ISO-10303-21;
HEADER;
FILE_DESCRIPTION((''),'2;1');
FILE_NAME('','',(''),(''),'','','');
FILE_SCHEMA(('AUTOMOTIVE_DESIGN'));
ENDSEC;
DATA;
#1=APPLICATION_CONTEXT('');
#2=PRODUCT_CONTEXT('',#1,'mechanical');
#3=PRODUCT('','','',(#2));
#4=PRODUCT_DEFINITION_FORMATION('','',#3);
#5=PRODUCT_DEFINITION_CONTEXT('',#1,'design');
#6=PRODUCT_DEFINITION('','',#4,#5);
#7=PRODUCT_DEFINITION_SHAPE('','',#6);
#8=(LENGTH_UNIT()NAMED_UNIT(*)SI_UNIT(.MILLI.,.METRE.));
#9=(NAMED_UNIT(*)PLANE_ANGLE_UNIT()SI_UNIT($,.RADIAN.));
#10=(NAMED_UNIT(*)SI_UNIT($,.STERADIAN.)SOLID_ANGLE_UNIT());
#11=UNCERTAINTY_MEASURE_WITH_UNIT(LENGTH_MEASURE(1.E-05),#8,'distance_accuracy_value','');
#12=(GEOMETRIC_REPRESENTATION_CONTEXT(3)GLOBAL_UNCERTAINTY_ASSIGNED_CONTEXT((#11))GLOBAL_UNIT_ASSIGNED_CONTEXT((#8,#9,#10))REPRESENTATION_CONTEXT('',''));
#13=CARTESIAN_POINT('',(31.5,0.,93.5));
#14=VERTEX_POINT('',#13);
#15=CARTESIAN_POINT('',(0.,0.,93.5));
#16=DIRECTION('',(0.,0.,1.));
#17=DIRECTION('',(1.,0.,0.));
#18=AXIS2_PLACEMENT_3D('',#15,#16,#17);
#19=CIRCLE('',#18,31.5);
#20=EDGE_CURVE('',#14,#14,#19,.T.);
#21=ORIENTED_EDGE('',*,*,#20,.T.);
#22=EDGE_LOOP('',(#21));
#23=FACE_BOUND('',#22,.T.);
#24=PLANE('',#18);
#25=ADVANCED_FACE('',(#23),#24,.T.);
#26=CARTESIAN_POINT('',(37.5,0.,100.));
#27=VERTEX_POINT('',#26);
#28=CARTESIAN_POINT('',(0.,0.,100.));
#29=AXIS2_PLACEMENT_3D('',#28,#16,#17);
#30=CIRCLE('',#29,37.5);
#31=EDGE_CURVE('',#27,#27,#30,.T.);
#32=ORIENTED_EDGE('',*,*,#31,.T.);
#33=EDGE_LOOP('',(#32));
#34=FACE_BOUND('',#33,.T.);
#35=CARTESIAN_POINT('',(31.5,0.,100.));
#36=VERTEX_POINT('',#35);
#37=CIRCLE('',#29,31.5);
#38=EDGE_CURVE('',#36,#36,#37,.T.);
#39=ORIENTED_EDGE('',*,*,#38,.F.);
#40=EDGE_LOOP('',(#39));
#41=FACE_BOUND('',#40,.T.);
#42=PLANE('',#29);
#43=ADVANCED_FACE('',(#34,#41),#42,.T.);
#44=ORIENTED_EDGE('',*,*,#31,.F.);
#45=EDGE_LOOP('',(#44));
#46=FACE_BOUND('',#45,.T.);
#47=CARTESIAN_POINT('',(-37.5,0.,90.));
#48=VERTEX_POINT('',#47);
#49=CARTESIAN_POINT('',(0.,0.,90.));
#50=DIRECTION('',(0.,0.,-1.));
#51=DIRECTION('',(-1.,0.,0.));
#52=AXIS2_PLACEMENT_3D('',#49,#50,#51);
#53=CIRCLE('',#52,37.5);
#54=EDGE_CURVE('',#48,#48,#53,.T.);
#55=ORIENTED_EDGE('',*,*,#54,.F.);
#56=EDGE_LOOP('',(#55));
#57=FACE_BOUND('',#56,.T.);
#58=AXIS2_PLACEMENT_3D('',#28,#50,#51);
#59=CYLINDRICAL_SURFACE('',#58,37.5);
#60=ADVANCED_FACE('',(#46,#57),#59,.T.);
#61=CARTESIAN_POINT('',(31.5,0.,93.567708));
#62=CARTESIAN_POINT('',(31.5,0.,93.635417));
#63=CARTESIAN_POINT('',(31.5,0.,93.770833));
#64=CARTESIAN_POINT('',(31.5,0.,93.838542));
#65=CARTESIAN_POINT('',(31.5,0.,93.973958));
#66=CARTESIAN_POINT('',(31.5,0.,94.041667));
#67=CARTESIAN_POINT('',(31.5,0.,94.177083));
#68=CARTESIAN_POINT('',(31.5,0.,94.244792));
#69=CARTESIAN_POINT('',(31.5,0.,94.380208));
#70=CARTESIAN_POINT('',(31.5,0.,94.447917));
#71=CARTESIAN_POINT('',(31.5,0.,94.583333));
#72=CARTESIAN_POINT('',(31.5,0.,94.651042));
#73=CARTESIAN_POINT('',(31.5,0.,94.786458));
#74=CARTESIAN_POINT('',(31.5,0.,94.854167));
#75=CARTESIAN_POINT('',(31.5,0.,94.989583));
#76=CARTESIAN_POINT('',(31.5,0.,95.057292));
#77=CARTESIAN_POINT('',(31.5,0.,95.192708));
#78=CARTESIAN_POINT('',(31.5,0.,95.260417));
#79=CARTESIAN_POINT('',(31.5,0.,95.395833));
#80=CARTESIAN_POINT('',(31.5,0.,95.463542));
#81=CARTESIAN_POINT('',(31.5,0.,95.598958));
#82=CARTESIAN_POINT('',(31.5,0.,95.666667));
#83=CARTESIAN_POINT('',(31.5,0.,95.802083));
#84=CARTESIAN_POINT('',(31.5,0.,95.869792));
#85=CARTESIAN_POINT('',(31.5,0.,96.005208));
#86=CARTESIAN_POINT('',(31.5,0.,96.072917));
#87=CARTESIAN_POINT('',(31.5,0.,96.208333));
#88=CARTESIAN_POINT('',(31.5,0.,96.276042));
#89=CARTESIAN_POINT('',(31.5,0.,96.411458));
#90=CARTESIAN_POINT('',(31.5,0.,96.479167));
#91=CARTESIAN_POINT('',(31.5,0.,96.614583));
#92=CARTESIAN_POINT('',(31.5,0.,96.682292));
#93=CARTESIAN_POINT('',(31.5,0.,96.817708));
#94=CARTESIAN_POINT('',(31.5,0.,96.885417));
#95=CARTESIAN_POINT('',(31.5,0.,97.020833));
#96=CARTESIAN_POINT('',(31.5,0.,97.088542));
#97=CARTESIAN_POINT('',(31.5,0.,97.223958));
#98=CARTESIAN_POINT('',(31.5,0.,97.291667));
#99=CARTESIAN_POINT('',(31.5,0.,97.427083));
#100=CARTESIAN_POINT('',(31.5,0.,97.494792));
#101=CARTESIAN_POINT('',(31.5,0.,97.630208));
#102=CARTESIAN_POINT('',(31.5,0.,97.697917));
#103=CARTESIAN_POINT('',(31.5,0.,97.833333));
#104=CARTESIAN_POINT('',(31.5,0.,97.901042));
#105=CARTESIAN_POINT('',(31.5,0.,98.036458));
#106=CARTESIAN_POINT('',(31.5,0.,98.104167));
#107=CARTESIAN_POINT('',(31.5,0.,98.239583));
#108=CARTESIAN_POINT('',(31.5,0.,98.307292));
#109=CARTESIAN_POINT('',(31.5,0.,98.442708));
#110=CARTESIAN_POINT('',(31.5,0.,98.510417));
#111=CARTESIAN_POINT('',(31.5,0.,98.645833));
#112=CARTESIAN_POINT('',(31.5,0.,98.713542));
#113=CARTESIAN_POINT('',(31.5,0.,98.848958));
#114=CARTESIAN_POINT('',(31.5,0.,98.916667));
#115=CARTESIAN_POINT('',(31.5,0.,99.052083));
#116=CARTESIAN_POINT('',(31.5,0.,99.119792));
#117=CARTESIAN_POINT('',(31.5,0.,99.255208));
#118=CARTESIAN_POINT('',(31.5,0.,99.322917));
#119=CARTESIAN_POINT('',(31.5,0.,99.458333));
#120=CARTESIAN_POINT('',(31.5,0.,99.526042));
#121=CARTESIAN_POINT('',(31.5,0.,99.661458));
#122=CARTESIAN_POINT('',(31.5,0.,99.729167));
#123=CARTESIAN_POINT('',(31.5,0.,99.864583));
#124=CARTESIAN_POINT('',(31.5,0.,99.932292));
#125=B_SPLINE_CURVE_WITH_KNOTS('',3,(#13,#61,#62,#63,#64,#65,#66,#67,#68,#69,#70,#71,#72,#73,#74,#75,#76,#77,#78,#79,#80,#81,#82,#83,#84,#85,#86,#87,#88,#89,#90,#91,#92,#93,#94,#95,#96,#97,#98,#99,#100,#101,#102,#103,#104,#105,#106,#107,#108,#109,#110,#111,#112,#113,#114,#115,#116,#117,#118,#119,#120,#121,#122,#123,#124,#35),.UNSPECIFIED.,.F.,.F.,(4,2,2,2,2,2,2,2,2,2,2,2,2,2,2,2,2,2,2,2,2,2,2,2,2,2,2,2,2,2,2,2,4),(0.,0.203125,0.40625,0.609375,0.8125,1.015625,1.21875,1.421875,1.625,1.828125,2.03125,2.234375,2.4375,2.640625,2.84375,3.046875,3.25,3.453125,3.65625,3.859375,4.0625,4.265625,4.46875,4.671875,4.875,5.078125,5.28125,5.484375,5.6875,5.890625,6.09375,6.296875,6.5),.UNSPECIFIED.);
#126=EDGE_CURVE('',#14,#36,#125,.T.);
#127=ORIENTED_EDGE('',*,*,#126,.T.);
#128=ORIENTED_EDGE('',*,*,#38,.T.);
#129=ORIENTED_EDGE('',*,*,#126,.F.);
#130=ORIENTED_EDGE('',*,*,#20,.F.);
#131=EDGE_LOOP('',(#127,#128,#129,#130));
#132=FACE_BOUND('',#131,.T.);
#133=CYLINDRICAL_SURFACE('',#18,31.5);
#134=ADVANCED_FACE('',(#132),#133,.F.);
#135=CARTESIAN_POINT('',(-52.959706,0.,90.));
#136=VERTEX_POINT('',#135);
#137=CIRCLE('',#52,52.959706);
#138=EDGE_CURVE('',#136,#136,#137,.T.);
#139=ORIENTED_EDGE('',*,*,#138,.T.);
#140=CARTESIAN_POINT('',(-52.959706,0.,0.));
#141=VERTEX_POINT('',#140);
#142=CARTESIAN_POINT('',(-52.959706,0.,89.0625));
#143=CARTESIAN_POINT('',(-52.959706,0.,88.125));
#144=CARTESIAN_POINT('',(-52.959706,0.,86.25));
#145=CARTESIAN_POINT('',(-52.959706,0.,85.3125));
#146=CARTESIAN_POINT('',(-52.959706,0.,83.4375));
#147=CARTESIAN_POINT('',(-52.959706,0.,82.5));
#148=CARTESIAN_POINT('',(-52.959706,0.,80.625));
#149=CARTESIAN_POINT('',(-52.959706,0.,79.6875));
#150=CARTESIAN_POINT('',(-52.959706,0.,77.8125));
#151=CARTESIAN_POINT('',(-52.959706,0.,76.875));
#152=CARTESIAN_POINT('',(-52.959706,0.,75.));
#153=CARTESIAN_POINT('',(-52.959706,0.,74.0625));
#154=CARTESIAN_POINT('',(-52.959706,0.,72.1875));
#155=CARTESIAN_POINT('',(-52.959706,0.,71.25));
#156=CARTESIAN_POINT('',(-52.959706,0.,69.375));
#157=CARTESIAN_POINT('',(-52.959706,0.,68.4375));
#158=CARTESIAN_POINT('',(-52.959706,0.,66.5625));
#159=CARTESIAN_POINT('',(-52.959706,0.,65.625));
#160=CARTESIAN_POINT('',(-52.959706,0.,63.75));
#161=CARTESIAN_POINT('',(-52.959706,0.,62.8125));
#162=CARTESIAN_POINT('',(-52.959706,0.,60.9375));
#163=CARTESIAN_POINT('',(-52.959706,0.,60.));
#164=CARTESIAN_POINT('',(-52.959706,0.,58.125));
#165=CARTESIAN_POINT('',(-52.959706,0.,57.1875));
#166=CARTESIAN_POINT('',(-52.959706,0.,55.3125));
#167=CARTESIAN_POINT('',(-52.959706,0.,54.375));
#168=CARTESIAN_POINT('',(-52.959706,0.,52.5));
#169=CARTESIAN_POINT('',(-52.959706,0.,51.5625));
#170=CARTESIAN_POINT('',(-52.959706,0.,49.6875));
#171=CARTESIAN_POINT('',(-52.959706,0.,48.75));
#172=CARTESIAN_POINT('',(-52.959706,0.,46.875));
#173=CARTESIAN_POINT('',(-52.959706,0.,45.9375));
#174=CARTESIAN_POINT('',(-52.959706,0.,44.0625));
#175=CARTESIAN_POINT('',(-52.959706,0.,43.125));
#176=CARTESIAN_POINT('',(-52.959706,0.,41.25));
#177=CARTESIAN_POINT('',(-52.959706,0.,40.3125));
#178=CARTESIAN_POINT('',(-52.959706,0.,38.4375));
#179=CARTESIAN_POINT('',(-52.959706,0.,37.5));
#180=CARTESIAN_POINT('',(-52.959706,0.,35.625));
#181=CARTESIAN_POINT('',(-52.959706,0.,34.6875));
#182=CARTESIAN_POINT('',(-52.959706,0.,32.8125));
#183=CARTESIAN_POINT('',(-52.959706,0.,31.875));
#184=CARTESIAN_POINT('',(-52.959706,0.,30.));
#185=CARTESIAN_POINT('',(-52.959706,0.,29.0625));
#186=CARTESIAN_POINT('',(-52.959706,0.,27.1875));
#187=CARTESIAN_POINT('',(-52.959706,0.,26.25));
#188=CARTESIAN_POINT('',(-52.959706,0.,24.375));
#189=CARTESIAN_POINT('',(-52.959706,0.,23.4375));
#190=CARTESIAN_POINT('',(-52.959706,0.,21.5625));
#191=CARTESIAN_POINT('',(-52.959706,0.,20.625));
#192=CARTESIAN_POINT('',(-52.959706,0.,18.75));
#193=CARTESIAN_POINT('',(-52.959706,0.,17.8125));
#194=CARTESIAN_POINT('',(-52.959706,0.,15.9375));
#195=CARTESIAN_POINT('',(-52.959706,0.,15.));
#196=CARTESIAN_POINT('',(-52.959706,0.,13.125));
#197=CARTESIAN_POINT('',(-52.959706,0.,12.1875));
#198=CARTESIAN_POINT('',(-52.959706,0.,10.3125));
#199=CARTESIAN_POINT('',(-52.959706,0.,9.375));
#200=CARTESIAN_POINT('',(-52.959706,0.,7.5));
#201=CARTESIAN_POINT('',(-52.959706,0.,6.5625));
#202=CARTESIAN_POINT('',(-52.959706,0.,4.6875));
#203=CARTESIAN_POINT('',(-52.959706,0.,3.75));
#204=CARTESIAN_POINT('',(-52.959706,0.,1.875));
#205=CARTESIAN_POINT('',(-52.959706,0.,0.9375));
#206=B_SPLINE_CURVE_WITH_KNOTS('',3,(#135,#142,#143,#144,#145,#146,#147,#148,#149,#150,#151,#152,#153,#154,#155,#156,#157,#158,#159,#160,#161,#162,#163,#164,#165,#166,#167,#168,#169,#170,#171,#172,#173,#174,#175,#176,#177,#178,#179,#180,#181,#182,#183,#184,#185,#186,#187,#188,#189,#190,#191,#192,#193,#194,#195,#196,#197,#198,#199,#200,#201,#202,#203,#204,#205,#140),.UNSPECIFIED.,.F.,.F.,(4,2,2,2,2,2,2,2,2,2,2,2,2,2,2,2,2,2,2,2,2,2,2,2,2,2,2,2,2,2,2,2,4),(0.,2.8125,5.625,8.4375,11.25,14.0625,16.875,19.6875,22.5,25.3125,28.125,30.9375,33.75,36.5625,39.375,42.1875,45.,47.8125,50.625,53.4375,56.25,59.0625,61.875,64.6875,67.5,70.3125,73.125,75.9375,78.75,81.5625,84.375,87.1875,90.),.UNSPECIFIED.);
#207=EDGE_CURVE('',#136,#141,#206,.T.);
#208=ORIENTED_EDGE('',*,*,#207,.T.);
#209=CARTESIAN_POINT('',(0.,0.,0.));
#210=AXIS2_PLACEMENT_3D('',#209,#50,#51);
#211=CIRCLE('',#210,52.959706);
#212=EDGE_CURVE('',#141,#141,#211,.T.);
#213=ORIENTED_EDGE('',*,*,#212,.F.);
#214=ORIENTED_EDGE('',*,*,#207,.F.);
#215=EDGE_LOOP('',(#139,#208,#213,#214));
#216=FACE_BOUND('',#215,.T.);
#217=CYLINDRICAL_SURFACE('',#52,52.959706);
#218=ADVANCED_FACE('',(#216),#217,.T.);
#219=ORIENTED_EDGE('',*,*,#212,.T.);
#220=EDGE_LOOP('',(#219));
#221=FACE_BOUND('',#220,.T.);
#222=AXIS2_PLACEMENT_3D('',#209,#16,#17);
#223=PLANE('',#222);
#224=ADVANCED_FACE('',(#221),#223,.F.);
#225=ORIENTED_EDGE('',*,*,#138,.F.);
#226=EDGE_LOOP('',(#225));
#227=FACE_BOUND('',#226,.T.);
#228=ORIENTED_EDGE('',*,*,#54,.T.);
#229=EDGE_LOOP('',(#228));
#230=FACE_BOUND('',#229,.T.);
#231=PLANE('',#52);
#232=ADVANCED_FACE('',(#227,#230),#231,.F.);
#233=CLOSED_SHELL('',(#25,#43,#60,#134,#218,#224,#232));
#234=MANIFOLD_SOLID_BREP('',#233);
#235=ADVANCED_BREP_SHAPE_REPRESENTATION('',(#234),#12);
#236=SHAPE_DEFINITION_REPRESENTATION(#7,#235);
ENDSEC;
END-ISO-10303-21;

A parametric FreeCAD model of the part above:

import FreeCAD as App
import Part
import Sketcher
Q = App.Units.Quantity

doc = App.newDocument("Part")
params = doc.addObject("Spreadsheet::Sheet", "Params")
for row, (alias, value) in enumerate([
    ("sketch1_diameter", "75 mm"),
    ("pad1_length", "100 mm"),
    ("sketch2_diameter", "63 mm"),
    ("pocket1_length", "6.5 mm"),
    ("pad2_length", "90 mm"),
], start=1):
    params.set(f"A{row}", alias)
    params.set(f"B{row}", "=" + value)
    params.setAlias(f"B{row}", alias)

body = doc.addObject("PartDesign::Body", "Body")

# Sketch on XY plane
sketch1 = body.newObject("Sketcher::SketchObject", "Sketch")
sketch1.AttachmentSupport = (doc.getObject("XY_Plane"), [""])
sketch1.MapMode = "FlatFace"
sketch1.addGeometry(Part.Circle(App.Vector(0, 0, 0), App.Vector(0, 0, 1), 38), False)
sketch1.addConstraint([
    Sketcher.Constraint("Coincident", 0, 3, -1, 1),
    Sketcher.Constraint("Diameter", 0, Q("75 mm")),
])
sketch1.setExpression("Constraints[1]", "Params.sketch1_diameter")
pad1 = body.newObject("PartDesign::Pad", "Pad")
pad1.Profile = sketch1
pad1.setExpression("Length", "Params.pad1_length")

# Sketch on XY plane
sketch2 = body.newObject("Sketcher::SketchObject", "Sketch001")
sketch2.AttachmentSupport = (doc.getObject("XY_Plane"), [""])
sketch2.MapMode = "FlatFace"
sketch2.AttachmentOffset = App.Placement(App.Vector(0, 0, 100), App.Rotation())
sketch2.addGeometry(Part.Circle(App.Vector(0, 0, 0), App.Vector(0, 0, 1), 32), False)
sketch2.addConstraint([
    Sketcher.Constraint("Coincident", 0, 3, -1, 1),
    Sketcher.Constraint("Diameter", 0, Q("63 mm")),
])
sketch2.setExpression("Constraints[1]", "Params.sketch2_diameter")
pocket1 = body.newObject("PartDesign::Pocket", "Pocket")
pocket1.Profile = sketch2
pocket1.setExpression("Length", "Params.pocket1_length")

# Sketch on XY plane
sketch3 = body.newObject("Sketcher::SketchObject", "Sketch002")
sketch3.AttachmentSupport = (doc.getObject("XY_Plane"), [""])
sketch3.MapMode = "FlatFace"
sketch3.addGeometry(Part.Circle(App.Vector(0, 0, 0), App.Vector(0, 0, 1), 53), False)
sketch3.addConstraint([
    Sketcher.Constraint("Coincident", 0, 3, -1, 1),
    Sketcher.Constraint("Diameter", 0, Q("105.919411 mm")),
])
pad2 = body.newObject("PartDesign::Pad", "Pad001")
pad2.Profile = sketch3
pad2.setExpression("Length", "Params.pad2_length")

doc.recompute()
